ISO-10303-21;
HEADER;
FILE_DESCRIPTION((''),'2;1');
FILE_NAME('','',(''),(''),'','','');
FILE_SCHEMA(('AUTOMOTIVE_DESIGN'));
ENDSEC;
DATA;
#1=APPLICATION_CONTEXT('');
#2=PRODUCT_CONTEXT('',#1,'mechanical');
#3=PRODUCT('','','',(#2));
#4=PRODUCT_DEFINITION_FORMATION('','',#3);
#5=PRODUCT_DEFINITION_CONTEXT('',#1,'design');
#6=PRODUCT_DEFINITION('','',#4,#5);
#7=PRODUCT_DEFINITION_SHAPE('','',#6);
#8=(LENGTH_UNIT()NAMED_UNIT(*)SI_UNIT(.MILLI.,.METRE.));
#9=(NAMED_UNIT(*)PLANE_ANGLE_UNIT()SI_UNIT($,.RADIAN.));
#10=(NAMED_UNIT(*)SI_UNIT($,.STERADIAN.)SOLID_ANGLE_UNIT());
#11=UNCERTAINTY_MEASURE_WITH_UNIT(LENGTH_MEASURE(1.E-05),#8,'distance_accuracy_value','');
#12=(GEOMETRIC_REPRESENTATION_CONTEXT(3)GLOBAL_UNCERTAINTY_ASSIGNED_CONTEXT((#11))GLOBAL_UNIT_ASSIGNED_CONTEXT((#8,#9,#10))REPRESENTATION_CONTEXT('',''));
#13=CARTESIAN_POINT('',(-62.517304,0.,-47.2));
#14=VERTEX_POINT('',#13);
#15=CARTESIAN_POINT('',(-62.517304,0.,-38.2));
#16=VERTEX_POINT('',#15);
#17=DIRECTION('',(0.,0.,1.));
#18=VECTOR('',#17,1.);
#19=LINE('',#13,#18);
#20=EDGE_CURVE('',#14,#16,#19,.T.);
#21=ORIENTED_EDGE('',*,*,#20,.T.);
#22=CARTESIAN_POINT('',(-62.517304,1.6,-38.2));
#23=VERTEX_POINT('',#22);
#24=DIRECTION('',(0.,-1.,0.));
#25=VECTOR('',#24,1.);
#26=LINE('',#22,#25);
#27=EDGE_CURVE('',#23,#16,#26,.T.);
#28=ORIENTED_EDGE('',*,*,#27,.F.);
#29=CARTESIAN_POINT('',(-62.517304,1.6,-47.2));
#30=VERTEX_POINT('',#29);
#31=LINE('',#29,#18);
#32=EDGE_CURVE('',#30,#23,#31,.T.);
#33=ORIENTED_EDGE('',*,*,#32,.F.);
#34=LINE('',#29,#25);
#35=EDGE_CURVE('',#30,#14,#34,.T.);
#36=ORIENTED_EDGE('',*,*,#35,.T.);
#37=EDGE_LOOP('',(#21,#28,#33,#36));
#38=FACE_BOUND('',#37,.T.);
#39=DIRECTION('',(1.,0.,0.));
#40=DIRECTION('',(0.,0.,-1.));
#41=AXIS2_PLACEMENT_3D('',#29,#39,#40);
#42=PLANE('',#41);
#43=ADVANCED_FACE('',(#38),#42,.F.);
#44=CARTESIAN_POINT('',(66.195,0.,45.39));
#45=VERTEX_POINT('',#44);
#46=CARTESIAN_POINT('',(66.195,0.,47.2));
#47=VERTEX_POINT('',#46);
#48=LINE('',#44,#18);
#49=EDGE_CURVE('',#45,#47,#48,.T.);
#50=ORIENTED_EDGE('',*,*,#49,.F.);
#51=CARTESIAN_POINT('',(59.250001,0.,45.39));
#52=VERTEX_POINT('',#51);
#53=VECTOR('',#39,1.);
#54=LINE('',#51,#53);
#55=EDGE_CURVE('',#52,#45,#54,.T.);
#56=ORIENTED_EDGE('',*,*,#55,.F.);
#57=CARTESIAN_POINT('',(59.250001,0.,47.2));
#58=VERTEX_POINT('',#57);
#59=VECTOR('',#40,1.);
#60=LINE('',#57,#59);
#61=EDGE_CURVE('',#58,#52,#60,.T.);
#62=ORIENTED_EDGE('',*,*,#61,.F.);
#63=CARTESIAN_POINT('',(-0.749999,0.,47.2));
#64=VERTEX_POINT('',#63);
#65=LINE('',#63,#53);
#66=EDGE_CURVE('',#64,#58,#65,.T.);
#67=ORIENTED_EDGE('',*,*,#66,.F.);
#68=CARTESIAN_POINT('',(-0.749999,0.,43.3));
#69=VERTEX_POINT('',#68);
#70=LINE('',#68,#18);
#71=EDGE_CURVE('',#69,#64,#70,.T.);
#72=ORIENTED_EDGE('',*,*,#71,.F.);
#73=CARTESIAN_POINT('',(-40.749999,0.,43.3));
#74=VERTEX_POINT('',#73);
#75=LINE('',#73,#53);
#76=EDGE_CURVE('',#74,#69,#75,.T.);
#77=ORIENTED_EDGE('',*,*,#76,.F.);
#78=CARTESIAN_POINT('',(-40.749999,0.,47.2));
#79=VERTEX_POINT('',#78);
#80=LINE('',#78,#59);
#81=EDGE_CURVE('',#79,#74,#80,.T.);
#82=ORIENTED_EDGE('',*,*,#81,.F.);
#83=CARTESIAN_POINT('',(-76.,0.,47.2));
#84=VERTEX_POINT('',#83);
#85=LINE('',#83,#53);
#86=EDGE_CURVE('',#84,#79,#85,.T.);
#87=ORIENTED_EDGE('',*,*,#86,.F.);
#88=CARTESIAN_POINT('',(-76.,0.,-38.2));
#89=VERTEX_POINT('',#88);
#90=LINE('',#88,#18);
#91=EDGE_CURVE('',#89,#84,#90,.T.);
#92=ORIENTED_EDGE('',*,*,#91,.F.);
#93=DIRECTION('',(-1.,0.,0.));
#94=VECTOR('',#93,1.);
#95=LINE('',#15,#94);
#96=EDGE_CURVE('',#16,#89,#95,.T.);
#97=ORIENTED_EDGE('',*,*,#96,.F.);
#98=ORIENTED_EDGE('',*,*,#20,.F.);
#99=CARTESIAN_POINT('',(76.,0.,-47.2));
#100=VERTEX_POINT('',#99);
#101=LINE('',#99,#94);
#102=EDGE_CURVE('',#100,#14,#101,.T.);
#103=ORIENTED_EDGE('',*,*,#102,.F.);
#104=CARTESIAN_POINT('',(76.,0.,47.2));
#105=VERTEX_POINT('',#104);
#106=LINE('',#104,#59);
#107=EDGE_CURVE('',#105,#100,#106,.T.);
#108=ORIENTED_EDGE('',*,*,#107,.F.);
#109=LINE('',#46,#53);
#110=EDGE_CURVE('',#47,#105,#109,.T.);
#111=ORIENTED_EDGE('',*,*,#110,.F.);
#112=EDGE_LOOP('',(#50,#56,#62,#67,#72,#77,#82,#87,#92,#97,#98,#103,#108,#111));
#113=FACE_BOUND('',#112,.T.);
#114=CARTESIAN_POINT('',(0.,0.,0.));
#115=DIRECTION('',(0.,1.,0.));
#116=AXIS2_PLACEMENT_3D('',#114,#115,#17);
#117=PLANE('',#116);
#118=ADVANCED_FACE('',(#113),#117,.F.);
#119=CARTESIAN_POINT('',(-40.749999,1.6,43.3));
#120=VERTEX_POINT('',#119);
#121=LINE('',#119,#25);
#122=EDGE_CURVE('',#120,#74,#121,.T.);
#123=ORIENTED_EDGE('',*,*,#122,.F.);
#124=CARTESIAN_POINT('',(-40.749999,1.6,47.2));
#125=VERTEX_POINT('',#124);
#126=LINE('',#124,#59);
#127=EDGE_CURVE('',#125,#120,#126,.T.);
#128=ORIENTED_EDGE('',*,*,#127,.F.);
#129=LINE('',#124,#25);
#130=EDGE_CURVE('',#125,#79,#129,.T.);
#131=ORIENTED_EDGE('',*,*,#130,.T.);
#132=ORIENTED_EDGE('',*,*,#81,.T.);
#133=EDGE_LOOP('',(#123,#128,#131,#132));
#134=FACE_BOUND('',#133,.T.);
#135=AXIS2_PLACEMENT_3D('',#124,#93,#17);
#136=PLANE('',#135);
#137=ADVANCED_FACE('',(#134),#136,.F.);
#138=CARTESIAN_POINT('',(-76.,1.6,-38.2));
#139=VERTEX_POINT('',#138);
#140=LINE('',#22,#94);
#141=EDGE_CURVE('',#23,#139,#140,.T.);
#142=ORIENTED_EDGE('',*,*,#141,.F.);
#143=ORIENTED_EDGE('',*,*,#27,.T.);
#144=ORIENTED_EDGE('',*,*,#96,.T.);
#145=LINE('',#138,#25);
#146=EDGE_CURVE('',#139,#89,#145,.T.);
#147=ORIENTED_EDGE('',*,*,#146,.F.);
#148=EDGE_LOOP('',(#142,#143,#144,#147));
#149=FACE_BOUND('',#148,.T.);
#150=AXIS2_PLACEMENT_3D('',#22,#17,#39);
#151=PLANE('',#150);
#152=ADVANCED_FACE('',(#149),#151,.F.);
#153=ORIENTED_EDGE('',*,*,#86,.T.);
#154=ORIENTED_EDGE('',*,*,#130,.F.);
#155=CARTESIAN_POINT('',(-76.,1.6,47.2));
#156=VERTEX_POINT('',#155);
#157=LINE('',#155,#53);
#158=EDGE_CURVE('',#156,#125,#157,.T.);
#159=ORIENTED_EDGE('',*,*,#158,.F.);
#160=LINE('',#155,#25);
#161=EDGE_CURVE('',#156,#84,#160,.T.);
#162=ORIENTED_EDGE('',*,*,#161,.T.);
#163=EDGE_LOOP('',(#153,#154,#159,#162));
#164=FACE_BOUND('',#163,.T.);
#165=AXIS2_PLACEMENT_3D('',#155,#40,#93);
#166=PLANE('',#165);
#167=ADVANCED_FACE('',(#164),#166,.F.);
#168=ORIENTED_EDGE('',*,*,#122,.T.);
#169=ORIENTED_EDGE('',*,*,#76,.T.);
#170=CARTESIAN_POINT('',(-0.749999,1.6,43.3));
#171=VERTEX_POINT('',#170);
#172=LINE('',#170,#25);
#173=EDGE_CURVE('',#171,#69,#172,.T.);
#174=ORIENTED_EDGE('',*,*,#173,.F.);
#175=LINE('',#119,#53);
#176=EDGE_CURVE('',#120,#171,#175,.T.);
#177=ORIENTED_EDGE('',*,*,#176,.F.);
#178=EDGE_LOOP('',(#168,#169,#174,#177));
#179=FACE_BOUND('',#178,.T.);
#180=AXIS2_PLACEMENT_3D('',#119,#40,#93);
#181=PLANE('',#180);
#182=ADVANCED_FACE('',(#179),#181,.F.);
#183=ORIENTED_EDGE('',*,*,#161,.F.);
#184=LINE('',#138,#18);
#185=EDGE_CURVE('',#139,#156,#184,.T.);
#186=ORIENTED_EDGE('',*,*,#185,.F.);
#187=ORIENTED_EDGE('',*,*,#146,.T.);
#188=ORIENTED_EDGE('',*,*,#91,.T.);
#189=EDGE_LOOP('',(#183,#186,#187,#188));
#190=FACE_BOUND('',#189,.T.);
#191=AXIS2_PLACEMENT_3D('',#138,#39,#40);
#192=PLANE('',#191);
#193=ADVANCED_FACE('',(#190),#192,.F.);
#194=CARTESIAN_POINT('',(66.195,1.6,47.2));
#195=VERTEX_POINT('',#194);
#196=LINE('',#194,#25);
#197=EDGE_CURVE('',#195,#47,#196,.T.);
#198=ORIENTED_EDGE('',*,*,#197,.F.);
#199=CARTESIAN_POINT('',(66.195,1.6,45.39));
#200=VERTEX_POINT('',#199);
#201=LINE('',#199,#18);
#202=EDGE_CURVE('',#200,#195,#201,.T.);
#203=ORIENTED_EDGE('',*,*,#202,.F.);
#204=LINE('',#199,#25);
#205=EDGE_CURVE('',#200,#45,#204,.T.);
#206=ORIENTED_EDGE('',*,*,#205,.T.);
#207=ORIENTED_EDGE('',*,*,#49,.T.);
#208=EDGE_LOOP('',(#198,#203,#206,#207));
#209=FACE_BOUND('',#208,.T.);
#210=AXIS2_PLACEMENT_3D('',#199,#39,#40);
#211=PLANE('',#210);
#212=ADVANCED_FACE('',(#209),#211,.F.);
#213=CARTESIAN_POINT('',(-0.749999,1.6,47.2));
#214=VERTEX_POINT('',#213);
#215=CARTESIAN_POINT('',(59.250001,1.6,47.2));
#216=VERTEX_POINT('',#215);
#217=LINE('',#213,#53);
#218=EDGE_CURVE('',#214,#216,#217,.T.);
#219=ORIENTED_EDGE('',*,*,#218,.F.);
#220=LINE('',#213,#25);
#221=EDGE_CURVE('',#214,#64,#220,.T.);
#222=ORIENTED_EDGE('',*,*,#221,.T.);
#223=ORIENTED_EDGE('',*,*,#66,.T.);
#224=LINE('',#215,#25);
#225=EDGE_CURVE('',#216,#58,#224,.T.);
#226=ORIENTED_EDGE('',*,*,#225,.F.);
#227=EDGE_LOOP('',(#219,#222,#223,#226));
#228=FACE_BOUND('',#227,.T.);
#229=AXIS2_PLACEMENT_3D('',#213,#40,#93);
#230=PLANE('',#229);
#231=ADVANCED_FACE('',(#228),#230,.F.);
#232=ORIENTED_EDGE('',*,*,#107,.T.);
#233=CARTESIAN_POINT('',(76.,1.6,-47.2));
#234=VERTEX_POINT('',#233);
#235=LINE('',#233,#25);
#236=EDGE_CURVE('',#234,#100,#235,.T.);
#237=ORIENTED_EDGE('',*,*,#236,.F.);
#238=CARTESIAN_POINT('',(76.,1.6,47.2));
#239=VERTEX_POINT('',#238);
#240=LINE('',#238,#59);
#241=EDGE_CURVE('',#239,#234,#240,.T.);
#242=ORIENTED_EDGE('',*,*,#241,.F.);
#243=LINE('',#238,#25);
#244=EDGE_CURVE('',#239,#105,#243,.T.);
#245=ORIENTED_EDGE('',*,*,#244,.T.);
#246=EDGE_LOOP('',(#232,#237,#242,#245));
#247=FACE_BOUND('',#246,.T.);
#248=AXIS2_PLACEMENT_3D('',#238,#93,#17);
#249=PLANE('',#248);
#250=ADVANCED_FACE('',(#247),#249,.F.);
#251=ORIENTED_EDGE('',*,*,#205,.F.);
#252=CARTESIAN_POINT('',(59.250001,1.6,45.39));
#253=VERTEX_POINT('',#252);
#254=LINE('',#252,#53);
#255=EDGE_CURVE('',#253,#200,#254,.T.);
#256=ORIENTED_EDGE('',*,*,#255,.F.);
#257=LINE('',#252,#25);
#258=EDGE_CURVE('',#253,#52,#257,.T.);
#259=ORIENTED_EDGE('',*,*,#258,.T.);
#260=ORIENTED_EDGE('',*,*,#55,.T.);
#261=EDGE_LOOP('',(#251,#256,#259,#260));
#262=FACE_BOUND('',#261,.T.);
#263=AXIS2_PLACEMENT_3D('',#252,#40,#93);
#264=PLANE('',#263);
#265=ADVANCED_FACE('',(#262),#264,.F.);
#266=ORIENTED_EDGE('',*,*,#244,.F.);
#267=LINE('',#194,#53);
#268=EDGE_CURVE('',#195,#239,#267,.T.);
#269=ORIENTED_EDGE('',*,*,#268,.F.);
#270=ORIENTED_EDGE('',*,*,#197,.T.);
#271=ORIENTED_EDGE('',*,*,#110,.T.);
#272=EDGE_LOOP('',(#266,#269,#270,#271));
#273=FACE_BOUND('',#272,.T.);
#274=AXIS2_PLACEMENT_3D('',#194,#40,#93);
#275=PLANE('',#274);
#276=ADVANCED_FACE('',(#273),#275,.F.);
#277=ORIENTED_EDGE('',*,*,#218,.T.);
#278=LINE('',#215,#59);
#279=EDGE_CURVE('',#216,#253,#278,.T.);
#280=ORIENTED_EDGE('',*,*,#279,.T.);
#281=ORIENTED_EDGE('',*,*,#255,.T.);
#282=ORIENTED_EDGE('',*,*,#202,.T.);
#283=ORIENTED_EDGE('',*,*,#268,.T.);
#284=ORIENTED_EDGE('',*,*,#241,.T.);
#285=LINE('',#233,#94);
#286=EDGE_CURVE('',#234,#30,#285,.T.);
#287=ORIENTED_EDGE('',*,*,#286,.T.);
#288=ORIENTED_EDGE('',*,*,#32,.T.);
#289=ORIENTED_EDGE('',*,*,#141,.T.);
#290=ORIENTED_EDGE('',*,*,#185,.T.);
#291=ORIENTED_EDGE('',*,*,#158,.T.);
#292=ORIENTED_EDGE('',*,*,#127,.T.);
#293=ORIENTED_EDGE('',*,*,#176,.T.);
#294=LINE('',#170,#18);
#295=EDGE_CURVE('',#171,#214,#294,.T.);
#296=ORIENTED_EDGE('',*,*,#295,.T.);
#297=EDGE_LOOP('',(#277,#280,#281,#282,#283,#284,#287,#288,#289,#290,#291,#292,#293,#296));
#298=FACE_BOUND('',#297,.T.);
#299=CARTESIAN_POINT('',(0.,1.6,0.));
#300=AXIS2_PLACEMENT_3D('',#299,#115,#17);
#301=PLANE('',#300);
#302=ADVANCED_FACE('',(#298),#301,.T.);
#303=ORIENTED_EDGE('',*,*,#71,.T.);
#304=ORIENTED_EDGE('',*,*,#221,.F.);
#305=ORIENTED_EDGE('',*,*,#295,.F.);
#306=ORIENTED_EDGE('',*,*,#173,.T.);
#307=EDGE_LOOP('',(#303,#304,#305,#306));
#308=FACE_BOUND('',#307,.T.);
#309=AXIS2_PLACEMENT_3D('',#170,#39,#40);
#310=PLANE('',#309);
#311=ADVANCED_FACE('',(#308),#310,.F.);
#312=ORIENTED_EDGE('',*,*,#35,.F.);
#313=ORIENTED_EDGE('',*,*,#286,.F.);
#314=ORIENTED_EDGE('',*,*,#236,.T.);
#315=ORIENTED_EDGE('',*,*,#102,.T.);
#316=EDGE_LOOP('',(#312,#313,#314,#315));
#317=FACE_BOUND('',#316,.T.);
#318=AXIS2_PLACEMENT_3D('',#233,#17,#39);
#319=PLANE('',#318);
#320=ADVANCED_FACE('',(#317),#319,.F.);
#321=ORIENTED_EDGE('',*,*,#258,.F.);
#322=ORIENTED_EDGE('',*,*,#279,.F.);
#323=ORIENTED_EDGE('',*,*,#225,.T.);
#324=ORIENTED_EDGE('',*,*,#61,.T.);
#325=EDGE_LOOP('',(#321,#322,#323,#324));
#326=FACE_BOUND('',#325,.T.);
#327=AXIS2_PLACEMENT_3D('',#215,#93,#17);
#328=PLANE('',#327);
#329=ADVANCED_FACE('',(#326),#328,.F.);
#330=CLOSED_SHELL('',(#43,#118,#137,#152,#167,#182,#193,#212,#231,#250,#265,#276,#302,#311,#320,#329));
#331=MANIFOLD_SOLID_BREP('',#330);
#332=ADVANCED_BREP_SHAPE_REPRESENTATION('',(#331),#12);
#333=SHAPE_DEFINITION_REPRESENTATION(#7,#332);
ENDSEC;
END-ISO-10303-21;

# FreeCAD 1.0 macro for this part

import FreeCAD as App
import Part
import Sketcher
from FreeCAD import Vector
Q = App.Units.Quantity

doc = App.newDocument("Part")
params = doc.addObject("Spreadsheet::Sheet", "Params")
for row, (alias, value) in enumerate([
    ("sketch1_width", "40 mm"),
    ("sketch1_width2", "60 mm"),
    ("sketch1_height", "9 mm"),
    ("sketch1_height2", "85.4 mm"),
    ("sketch1_height3", "3.9 mm"),
    ("pad1_length", "1.6 mm"),
], start=1):
    params.set(f"A{row}", alias)
    params.set(f"B{row}", "=" + value)
    params.setAlias(f"B{row}", alias)

body = doc.addObject("PartDesign::Body", "Body")

# Sketch on XZ plane
sketch1 = body.newObject("Sketcher::SketchObject", "Sketch")
sketch1.AttachmentSupport = (doc.getObject("XZ_Plane"), [""])
sketch1.MapMode = "FlatFace"
sketch1.addGeometry([
    Part.LineSegment(Vector(-76, -38.2, 0), Vector(-76, 47.2, 0)),  # 0
    Part.LineSegment(Vector(-76, 47.2, 0), Vector(-40.7, 47.2, 0)),  # 1
    Part.LineSegment(Vector(-40.7, 47.2, 0), Vector(-40.7, 43.3, 0)),  # 2
    Part.LineSegment(Vector(-40.7, 43.3, 0), Vector(-0.7, 43.3, 0)),  # 3
    Part.LineSegment(Vector(-0.7, 43.3, 0), Vector(-0.7, 47.2, 0)),  # 4
    Part.LineSegment(Vector(-0.7, 47.2, 0), Vector(59.3, 47.2, 0)),  # 5
    Part.LineSegment(Vector(59.3, 47.2, 0), Vector(59.3, 45.4, 0)),  # 6
    Part.LineSegment(Vector(59.3, 45.4, 0), Vector(66.2, 45.4, 0)),  # 7
    Part.LineSegment(Vector(66.2, 45.4, 0), Vector(66.2, 47.2, 0)),  # 8
    Part.LineSegment(Vector(66.2, 47.2, 0), Vector(76, 47.2, 0)),  # 9
    Part.LineSegment(Vector(76, 47.2, 0), Vector(76, -47.2, 0)),  # 10
    Part.LineSegment(Vector(76, -47.2, 0), Vector(-62.5, -47.2, 0)),  # 11
    Part.LineSegment(Vector(-62.5, -47.2, 0), Vector(-62.5, -38.2, 0)),  # 12
    Part.LineSegment(Vector(-62.5, -38.2, 0), Vector(-76, -38.2, 0)),  # 13
], False)
sketch1.addConstraint([
    Sketcher.Constraint("Coincident", 0, 2, 1, 1),
    Sketcher.Constraint("Coincident", 1, 2, 2, 1),
    Sketcher.Constraint("Coincident", 2, 2, 3, 1),
    Sketcher.Constraint("Coincident", 3, 2, 4, 1),
    Sketcher.Constraint("Coincident", 4, 2, 5, 1),
    Sketcher.Constraint("Coincident", 5, 2, 6, 1),
    Sketcher.Constraint("Coincident", 6, 2, 7, 1),
    Sketcher.Constraint("Coincident", 7, 2, 8, 1),
    Sketcher.Constraint("Coincident", 8, 2, 9, 1),
    Sketcher.Constraint("Coincident", 9, 2, 10, 1),
    Sketcher.Constraint("Coincident", 10, 2, 11, 1),
    Sketcher.Constraint("Coincident", 11, 2, 12, 1),
    Sketcher.Constraint("Coincident", 12, 2, 13, 1),
    Sketcher.Constraint("Coincident", 13, 2, 0, 1),
    Sketcher.Constraint("Vertical", 0),
    Sketcher.Constraint("Horizontal", 1),
    Sketcher.Constraint("Vertical", 2),
    Sketcher.Constraint("Horizontal", 3),
    Sketcher.Constraint("Vertical", 4),
    Sketcher.Constraint("Horizontal", 5),
    Sketcher.Constraint("Vertical", 6),
    Sketcher.Constraint("Horizontal", 7),
    Sketcher.Constraint("Vertical", 8),
    Sketcher.Constraint("Horizontal", 9),
    Sketcher.Constraint("Vertical", 10),
    Sketcher.Constraint("Horizontal", 11),
    Sketcher.Constraint("Vertical", 12),
    Sketcher.Constraint("Horizontal", 13),
    Sketcher.Constraint("Symmetric", 0, 2, 10, 2, -1, 1),
    Sketcher.Constraint("Horizontal", 1, 2, 4, 2),
    Sketcher.Constraint("Horizontal", 5, 2, 8, 2),
    Sketcher.Constraint("DistanceX", 3, 1, 3, 2, Q("40 mm")),
    Sketcher.Constraint("DistanceX", 5, 1, 5, 2, Q("60 mm")),
    Sketcher.Constraint("DistanceY", 12, 1, 12, 2, Q("9 mm")),
    Sketcher.Constraint("DistanceY", 0, 1, 0, 2, Q("85.4 mm")),
    Sketcher.Constraint("DistanceY", 2, 2, 2, 1, Q("3.9 mm")),
    Sketcher.Constraint("DistanceX", 0, 2, -1, 1, Q("76 mm")),
    Sketcher.Constraint("DistanceX", 1, 1, 1, 2, Q("35.250001 mm")),
    Sketcher.Constraint("DistanceY", 6, 2, 6, 1, Q("1.81 mm")),
    Sketcher.Constraint("DistanceX", 7, 1, 7, 2, Q("6.944999 mm")),
    Sketcher.Constraint("DistanceX", 11, 2, 11, 1, Q("138.517304 mm")),
])
sketch1.setExpression("Constraints[31]", "Params.sketch1_width")
sketch1.setExpression("Constraints[32]", "Params.sketch1_width2")
sketch1.setExpression("Constraints[33]", "Params.sketch1_height")
sketch1.setExpression("Constraints[34]", "Params.sketch1_height2")
sketch1.setExpression("Constraints[35]", "Params.sketch1_height3")
pad1 = body.newObject("PartDesign::Pad", "Pad")
pad1.Profile = sketch1
pad1.setExpression("Length", "Params.pad1_length")
pad1.Reversed = True

doc.recompute()
